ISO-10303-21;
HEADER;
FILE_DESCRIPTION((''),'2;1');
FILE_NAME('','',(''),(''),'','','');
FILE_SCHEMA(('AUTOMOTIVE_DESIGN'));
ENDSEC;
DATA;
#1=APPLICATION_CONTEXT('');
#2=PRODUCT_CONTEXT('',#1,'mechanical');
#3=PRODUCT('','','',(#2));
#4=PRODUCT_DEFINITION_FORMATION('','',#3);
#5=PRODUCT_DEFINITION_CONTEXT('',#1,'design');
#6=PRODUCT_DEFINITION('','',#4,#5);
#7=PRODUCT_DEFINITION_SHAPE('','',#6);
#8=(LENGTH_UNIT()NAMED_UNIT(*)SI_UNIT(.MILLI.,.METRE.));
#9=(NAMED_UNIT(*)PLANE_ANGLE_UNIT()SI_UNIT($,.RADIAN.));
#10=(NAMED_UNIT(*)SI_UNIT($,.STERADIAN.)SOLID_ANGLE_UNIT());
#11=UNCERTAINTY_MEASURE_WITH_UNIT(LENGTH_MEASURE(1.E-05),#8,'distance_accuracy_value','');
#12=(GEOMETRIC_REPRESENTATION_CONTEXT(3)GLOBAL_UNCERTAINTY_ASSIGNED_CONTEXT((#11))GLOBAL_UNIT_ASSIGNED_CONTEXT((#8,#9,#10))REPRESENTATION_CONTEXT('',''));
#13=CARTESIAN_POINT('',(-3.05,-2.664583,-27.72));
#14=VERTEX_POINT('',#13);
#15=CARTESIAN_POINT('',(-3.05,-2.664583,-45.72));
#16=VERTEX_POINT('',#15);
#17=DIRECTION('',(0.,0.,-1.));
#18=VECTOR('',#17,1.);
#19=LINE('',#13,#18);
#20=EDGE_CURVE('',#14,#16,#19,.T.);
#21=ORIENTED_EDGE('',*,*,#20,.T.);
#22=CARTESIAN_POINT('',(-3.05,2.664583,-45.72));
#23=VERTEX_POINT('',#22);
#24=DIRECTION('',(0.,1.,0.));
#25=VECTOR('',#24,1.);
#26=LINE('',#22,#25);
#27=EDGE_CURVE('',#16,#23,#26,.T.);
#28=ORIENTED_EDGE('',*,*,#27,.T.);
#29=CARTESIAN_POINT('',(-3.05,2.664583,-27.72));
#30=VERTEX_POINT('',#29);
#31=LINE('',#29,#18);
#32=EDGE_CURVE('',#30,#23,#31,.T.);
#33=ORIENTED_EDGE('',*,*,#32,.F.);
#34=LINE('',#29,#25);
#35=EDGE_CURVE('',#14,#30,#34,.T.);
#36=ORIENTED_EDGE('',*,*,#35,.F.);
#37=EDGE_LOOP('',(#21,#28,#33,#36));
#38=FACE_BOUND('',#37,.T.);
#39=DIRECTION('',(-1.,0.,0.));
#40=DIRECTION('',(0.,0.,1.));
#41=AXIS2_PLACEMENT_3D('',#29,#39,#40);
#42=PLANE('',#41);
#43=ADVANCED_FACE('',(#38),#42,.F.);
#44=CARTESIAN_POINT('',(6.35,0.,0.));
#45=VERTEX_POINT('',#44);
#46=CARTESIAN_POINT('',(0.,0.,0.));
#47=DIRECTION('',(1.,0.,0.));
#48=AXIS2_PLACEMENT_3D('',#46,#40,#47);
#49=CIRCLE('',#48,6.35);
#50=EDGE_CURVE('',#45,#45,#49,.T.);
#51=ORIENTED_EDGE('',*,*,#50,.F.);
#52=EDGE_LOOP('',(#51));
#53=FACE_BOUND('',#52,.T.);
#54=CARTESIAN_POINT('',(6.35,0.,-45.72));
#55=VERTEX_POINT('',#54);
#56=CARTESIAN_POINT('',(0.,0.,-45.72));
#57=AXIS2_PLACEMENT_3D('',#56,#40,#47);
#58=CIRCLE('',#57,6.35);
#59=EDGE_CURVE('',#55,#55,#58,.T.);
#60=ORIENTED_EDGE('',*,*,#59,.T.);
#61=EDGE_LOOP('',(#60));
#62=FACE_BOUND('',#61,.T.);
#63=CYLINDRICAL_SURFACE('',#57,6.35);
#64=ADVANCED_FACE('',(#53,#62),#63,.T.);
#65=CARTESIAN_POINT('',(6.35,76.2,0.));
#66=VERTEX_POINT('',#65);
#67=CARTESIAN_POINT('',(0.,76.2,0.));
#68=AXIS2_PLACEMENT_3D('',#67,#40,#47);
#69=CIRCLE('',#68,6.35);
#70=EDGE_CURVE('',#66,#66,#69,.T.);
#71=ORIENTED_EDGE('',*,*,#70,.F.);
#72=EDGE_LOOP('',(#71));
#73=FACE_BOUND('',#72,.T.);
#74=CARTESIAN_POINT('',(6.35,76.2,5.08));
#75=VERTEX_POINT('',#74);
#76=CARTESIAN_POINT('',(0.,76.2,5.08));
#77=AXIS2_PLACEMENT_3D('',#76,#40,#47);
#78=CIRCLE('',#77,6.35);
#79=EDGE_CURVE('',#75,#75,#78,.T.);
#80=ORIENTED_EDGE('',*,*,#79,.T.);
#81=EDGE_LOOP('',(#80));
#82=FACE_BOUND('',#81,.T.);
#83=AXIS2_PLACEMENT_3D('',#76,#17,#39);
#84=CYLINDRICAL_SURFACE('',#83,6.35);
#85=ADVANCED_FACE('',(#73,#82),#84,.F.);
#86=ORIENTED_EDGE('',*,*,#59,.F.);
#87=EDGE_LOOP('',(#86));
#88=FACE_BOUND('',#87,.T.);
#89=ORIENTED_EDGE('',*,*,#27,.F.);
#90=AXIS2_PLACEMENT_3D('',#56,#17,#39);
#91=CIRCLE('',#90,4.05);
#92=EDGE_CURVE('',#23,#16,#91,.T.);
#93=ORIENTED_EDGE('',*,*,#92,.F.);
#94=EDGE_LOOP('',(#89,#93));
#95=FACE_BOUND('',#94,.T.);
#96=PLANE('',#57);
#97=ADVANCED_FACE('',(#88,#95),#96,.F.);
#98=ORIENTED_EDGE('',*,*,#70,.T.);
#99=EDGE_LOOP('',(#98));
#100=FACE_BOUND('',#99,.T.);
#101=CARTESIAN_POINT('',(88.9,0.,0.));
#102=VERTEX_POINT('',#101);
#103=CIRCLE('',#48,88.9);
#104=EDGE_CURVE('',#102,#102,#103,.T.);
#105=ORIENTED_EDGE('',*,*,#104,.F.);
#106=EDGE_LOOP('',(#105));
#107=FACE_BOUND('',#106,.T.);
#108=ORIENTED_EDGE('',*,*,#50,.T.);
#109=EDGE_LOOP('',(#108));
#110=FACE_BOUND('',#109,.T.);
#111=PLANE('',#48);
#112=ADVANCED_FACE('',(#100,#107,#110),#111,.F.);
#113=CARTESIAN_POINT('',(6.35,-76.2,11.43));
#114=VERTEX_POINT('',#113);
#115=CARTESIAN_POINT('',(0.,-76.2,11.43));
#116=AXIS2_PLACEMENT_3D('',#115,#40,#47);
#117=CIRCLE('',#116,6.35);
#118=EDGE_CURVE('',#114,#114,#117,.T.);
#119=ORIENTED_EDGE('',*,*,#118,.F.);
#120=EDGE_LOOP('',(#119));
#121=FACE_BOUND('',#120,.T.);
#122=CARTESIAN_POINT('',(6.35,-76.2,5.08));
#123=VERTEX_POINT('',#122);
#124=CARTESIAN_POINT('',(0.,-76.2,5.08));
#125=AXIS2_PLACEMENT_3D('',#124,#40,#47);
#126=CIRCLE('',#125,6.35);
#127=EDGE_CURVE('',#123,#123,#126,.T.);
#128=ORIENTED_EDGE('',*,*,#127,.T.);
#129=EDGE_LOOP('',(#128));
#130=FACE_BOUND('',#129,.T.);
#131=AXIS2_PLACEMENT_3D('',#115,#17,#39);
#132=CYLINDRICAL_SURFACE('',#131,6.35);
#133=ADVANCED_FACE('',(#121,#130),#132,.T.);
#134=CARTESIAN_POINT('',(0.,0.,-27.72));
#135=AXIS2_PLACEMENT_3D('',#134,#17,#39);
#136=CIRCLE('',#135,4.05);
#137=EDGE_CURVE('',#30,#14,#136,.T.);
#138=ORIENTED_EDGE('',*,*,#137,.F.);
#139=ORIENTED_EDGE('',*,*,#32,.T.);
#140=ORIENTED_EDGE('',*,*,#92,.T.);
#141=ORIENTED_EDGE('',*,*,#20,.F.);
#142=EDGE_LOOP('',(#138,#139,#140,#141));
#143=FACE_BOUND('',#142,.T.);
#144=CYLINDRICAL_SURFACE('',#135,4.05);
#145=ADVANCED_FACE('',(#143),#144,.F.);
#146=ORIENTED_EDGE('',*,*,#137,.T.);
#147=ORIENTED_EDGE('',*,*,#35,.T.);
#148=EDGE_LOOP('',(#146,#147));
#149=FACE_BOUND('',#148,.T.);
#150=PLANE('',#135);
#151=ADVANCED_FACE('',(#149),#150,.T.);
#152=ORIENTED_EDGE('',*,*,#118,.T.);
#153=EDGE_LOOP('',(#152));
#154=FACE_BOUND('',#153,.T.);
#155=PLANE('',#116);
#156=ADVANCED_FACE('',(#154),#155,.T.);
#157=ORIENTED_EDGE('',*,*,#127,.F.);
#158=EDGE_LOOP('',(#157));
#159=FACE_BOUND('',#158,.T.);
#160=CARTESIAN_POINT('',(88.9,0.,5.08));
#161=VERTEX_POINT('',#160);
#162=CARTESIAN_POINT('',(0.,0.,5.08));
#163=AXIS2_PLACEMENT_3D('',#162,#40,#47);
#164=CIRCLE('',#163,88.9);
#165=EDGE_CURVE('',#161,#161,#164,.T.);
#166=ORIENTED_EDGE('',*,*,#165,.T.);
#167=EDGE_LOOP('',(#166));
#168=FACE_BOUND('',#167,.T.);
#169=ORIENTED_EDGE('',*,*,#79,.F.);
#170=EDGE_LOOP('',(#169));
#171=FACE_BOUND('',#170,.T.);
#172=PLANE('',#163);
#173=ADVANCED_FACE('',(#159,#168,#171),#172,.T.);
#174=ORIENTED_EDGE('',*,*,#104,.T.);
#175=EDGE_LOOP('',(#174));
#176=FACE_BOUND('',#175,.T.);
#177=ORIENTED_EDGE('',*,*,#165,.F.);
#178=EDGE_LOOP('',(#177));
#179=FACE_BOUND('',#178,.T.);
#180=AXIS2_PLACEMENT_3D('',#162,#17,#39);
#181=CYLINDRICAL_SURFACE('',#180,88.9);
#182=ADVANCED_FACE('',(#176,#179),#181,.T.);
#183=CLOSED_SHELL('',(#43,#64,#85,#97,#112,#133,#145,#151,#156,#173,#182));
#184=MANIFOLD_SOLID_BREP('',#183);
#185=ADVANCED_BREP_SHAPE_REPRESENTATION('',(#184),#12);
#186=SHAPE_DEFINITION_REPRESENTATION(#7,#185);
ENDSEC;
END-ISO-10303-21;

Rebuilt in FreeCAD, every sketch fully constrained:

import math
import FreeCAD as App
import Part
import Sketcher
from FreeCAD import Vector
Q = App.Units.Quantity

doc = App.newDocument("Part")
body = doc.addObject("PartDesign::Body", "Body")

sketch1 = body.newObject("Sketcher::SketchObject", "Sketch")
sketch1.AttachmentSupport = (doc.getObject("XY_Plane"), [""])
sketch1.MapMode = "FlatFace"
sketch1.addGeometry(Part.Circle(Vector(0, 0, 0), Vector(0, 0, 1), 89), False)
sketch1.addGeometry(Part.Circle(Vector(0, -76, 0), Vector(0, 0, 1), 6), False)
sketch1.addGeometry(Part.Circle(Vector(0, 0, 0), Vector(0, 0, 1), 6), False)
sketch1.addGeometry(Part.Circle(Vector(0, 76, 0), Vector(0, 0, 1), 6), False)
sketch1.addConstraint(Sketcher.Constraint("Coincident", 0, 3, -1, 1))
sketch1.addConstraint(Sketcher.Constraint("Coincident", 2, 3, -1, 1))
sketch1.addConstraint(Sketcher.Constraint("Equal", 1, 3))
sketch1.addConstraint(Sketcher.Constraint("Symmetric", 1, 3, 3, 3, -1, 1))
sketch1.addConstraint(Sketcher.Constraint("PointOnObject", 1, 3, -2))
sketch1.addConstraint(Sketcher.Constraint("Diameter", 0, Q("7 in")))
sketch1.addConstraint(Sketcher.Constraint("Diameter", 1, Q("0.5 in")))
sketch1.addConstraint(Sketcher.Constraint("DistanceY", 1, 3, -1, 1, Q("3 in")))
sketch1.addConstraint(Sketcher.Constraint("Diameter", 2, 12.0))
pad1 = body.newObject("PartDesign::Pad", "Pad")
pad1.Profile = sketch1
pad1.Length = Q("0.2 in")

sketch2 = body.newObject("Sketcher::SketchObject", "Sketch001")
sketch2.AttachmentSupport = (doc.getObject("XY_Plane"), [""])
sketch2.MapMode = "FlatFace"
sketch2.addGeometry(Part.Circle(Vector(0, -76, 0), Vector(0, 0, 1), 6), False)
sketch2.addConstraint(Sketcher.Constraint("PointOnObject", 0, 3, -2))
sketch2.addConstraint(Sketcher.Constraint("Diameter", 0, Q("0.5 in")))
sketch2.addConstraint(Sketcher.Constraint("DistanceY", 0, 3, -1, 1, Q("3 in")))
pad2 = body.newObject("PartDesign::Pad", "Pad001")
pad2.Profile = sketch2
pad2.Length = Q("0.45 in")

sketch3 = body.newObject("Sketcher::SketchObject", "Sketch002")
sketch3.AttachmentSupport = (doc.getObject("XY_Plane"), [""])
sketch3.MapMode = "FlatFace"
sketch3.AttachmentOffset = App.Placement(Vector(0, 0, 0.2 * 25.4), App.Rotation())
sketch3.addGeometry(Part.Circle(Vector(0, 0, 0), Vector(0, 0, 1), 6), False)
sketch3.addConstraint(Sketcher.Constraint("Coincident", 0, 3, -1, 1))
sketch3.addConstraint(Sketcher.Constraint("Diameter", 0, Q("0.5 in")))
pad3 = body.newObject("PartDesign::Pad", "Pad002")
pad3.Profile = sketch3
pad3.Length = Q("2 in")
pad3.Reversed = True

sketch4 = body.newObject("Sketcher::SketchObject", "Sketch003")
sketch4.AttachmentSupport = (doc.getObject("XY_Plane"), [""])
sketch4.MapMode = "FlatFace"
sketch4.AttachmentOffset = App.Placement(Vector(0, 0, -1.8 * 25.4), App.Rotation())
sketch4.addGeometry(Part.LineSegment(Vector(-3, -2.7, 0), Vector(-3, 2.7, 0)), False)
sketch4.addGeometry(Part.ArcOfCircle(Part.Circle(Vector(0, 0, 0), Vector(0, 0, 1), 4), math.radians(-139), math.radians(139)), False)
sketch4.addConstraint(Sketcher.Constraint("Coincident", 0, 1, 1, 1))
sketch4.addConstraint(Sketcher.Constraint("Coincident", 1, 2, 0, 2))
sketch4.addConstraint(Sketcher.Constraint("Vertical", 0))
sketch4.addConstraint(Sketcher.Constraint("Coincident", 1, 3, -1, 1))
sketch4.addConstraint(Sketcher.Constraint("Radius", 1, 4.05))
sketch4.addConstraint(Sketcher.Constraint("DistanceX", 0, 1, -1, 1, 3.05))
pocket1 = body.newObject("PartDesign::Pocket", "Pocket")
pocket1.Profile = sketch4
pocket1.Length = 18
pocket1.Reversed = True

doc.recompute()
